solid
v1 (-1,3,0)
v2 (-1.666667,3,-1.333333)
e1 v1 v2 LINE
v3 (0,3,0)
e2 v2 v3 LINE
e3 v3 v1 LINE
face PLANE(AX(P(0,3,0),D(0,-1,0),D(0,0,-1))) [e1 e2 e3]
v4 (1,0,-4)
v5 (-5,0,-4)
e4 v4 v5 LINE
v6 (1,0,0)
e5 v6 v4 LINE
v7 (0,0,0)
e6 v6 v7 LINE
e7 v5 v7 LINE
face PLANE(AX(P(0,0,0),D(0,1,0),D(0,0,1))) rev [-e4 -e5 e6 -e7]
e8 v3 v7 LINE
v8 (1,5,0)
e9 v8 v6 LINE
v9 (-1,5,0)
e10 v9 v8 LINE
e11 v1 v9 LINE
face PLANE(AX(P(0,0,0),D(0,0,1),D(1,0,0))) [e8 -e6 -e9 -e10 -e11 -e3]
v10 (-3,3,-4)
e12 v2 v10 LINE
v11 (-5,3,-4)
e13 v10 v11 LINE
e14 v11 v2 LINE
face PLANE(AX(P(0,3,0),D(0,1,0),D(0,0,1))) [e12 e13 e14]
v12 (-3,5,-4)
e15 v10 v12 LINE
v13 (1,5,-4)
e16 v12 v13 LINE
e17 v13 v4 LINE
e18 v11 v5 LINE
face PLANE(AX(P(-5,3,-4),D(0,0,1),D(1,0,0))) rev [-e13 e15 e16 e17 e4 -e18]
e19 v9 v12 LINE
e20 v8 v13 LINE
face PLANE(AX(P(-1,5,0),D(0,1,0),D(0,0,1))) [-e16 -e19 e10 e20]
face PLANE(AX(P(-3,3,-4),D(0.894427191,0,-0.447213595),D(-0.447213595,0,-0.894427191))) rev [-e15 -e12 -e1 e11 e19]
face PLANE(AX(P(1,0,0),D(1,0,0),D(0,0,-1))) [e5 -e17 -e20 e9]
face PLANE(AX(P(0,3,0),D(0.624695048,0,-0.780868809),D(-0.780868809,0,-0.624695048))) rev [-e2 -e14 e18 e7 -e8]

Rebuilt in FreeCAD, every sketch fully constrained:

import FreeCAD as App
import Part
import Sketcher
Q = App.Units.Quantity


def add_polygon(sketch, points):
    """Adds a closed chain of lines whose ends are joined by coincident constraints."""
    first, n = sketch.GeometryCount, len(points)
    for a, b in zip(points, points[1:] + points[:1]):
        sketch.addGeometry(Part.LineSegment(App.Vector(*a, 0), App.Vector(*b, 0)), False)
    for i in range(n):
        sketch.addConstraint(Sketcher.Constraint("Coincident", first + i, 2, first + (i + 1) % n, 1))

doc = App.newDocument("Part")
body = doc.addObject("PartDesign::Body", "Body")

# Sketch on XZ plane
sketch1 = doc.addObject("Sketcher::SketchObject", "Sketch")
body.addObject(sketch1)
sketch1.AttachmentSupport = (doc.XZ_Plane, [""])
sketch1.MapMode = "FlatFace"
add_polygon(sketch1, [(-5, -4), (0, 0), (0, -4)])  # lines 0-2
sketch1.addConstraint(Sketcher.Constraint("Vertical", 1))
sketch1.addConstraint(Sketcher.Constraint("Horizontal", 2))
sketch1.addConstraint(Sketcher.Constraint("Coincident", 0, 2, -1, 1))
sketch1.addConstraint(Sketcher.Constraint("DistanceX", 2, 2, 2, 1, Q("5 mm")))
sketch1.addConstraint(Sketcher.Constraint("DistanceY", 1, 2, 1, 1, Q("4 mm")))
pad1 = doc.addObject("PartDesign::Pad", "Pad")
body.addObject(pad1)
pad1.Profile = sketch1
pad1.Length = 3
pad1.Reversed = True

# Sketch on XY plane
sketch2 = doc.addObject("Sketcher::SketchObject", "Sketch001")
body.addObject(sketch2)
sketch2.AttachmentSupport = (doc.XY_Plane, [""])
sketch2.MapMode = "FlatFace"
sketch2.AttachmentOffset = App.Placement(App.Vector(0, 0, -4), App.Rotation())
add_polygon(sketch2, [(-3, 5), (1, 5), (1, 0), (0, 0), (0, 3), (-3, 3)])  # lines 0-5
sketch2.addConstraint(Sketcher.Constraint("Horizontal", 0))
sketch2.addConstraint(Sketcher.Constraint("Vertical", 1))
sketch2.addConstraint(Sketcher.Constraint("Horizontal", 2))
sketch2.addConstraint(Sketcher.Constraint("Vertical", 3))
sketch2.addConstraint(Sketcher.Constraint("Horizontal", 4))
sketch2.addConstraint(Sketcher.Constraint("Vertical", 5))
sketch2.addConstraint(Sketcher.Constraint("Coincident", 2, 2, -1, 1))
sketch2.addConstraint(Sketcher.Constraint("Equal", 4, 3))
sketch2.addConstraint(Sketcher.Constraint("DistanceX", 0, 1, 0, 2, Q("4 mm")))
sketch2.addConstraint(Sketcher.Constraint("DistanceX", 2, 2, 2, 1, Q("1 mm")))
sketch2.addConstraint(Sketcher.Constraint("DistanceY", 1, 2, 1, 1, Q("5 mm")))
pad2 = doc.addObject("PartDesign::Pad", "Pad001")
body.addObject(pad2)
pad2.Profile = sketch2
pad2.Length = 4

# Sketch on XZ plane
sketch3 = doc.addObject("Sketcher::SketchObject", "Sketch002")
body.addObject(sketch3)
sketch3.AttachmentSupport = (doc.XZ_Plane, [""])
sketch3.MapMode = "FlatFace"
sketch3.AttachmentOffset = App.Placement(App.Vector(0, 0, -5), App.Rotation())
add_polygon(sketch3, [(-1, 0), (-3, -4), (-3, 0)])  # lines 0-2
sketch3.addConstraint(Sketcher.Constraint("Vertical", 1))
sketch3.addConstraint(Sketcher.Constraint("Horizontal", 2))
sketch3.addConstraint(Sketcher.Constraint("PointOnObject", 1, 2, -1))
sketch3.addConstraint(Sketcher.Constraint("DistanceX", 2, 1, 2, 2, Q("2 mm")))
sketch3.addConstraint(Sketcher.Constraint("DistanceY", 1, 1, 1, 2, Q("4 mm")))
sketch3.addConstraint(Sketcher.Constraint("DistanceX", 0, 2, -1, 1, Q("3 mm")))
pocket1 = doc.addObject("PartDesign::Pocket", "Pocket")
body.addObject(pocket1)
pocket1.Profile = sketch3
pocket1.Length = 2
pocket1.Reversed = True

doc.recompute()
